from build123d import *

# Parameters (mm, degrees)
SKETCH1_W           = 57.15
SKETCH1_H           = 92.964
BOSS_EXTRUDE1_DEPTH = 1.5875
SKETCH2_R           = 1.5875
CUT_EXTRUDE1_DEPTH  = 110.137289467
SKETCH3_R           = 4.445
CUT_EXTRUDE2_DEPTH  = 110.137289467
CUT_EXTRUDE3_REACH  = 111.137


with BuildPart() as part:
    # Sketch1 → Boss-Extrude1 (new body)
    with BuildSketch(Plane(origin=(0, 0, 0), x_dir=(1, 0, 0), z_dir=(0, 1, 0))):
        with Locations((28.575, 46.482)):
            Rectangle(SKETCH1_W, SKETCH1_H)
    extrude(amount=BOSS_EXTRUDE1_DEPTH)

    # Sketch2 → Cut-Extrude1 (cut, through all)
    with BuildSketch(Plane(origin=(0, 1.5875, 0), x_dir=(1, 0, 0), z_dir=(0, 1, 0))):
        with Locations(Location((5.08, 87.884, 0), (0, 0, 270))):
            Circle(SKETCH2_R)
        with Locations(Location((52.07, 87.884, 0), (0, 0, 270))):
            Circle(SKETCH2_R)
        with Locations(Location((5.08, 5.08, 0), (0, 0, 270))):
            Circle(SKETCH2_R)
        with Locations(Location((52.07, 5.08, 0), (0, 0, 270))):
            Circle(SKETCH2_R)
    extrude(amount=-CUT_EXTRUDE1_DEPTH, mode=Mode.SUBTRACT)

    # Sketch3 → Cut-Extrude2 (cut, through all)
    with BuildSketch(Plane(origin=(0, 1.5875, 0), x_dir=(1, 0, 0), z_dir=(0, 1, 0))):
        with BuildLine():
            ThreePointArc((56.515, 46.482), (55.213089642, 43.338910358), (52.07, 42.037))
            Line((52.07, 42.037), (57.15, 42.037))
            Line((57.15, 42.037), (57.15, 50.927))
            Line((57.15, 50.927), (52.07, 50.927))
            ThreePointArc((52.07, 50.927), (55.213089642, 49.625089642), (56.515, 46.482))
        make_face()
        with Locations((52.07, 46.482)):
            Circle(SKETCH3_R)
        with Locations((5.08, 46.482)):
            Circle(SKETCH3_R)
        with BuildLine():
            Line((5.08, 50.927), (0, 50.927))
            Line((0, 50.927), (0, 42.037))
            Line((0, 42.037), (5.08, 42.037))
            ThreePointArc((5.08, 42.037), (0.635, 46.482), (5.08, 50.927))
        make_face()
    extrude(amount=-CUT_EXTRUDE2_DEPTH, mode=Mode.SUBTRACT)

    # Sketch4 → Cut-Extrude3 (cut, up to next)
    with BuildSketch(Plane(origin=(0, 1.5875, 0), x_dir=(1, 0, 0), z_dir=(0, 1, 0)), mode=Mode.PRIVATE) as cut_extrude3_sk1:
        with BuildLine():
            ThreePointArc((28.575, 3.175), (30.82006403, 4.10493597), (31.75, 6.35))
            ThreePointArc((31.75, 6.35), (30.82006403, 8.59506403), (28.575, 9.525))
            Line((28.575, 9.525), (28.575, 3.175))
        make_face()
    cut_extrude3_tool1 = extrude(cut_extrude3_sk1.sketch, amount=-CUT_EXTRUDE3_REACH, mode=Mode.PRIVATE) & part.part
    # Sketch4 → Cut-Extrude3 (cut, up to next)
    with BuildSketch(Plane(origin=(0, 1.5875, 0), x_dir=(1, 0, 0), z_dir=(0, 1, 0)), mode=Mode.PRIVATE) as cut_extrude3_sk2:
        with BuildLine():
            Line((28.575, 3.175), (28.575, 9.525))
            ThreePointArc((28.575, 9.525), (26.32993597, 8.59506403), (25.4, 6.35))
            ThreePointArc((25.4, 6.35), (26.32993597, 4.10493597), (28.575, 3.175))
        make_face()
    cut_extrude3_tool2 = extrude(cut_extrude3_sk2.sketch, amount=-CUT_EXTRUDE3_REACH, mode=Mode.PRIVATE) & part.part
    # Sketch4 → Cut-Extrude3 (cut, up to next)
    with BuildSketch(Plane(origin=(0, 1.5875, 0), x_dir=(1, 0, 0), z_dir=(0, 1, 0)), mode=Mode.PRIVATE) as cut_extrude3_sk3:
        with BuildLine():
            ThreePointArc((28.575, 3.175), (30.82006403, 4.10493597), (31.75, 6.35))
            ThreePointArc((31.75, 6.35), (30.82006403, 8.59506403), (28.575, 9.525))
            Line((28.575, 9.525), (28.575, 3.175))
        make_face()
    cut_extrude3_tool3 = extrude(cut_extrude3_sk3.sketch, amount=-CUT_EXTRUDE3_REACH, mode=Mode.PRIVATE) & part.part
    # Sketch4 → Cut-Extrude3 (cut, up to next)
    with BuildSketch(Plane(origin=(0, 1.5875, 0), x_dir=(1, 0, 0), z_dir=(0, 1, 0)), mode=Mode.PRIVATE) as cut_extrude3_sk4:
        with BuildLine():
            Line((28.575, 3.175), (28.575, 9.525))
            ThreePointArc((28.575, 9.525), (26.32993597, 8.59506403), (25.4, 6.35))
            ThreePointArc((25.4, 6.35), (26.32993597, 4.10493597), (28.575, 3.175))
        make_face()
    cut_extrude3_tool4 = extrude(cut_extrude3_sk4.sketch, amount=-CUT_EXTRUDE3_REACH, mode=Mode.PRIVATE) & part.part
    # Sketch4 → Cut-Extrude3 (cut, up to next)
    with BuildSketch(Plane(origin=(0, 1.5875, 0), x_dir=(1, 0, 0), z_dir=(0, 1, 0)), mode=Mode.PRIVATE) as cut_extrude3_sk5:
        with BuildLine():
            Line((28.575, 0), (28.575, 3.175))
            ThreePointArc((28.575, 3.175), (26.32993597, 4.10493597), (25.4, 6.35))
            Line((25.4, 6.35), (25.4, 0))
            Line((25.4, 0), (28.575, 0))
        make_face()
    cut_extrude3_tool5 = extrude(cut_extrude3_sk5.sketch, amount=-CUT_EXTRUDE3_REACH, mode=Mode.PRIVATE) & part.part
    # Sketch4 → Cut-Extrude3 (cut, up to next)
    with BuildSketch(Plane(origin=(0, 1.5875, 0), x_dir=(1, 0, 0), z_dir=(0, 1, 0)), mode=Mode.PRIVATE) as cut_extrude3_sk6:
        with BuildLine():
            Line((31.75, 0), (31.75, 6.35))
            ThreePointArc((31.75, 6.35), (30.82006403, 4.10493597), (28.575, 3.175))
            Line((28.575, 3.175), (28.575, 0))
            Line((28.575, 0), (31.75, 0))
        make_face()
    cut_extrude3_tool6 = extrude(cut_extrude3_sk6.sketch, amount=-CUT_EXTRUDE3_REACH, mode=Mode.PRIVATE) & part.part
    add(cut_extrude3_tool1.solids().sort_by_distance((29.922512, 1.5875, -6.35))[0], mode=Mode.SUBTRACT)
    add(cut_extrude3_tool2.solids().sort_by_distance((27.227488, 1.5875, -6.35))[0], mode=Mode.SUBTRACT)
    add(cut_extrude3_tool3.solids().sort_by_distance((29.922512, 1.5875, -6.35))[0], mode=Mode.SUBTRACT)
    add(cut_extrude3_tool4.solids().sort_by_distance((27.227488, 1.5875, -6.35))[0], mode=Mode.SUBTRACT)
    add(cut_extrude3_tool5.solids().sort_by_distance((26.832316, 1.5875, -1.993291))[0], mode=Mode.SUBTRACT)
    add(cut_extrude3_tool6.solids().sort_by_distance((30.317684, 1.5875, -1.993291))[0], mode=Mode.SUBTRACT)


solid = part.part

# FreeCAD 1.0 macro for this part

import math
import FreeCAD as App
import Part
import Sketcher
Q = App.Units.Quantity

doc = App.newDocument("Part")
body = doc.addObject("PartDesign::Body", "Body")

sketch1 = body.newObject("Sketcher::SketchObject", "Sketch")
sketch1.AttachmentSupport = (doc.getObject("XZ_Plane"), [""])
sketch1.MapMode = "FlatFace"
sketch1.addGeometry(Part.LineSegment(App.Vector(0, -93, 0), App.Vector(0, 0, 0)), False)
sketch1.addGeometry(Part.LineSegment(App.Vector(0, 0, 0), App.Vector(57, 0, 0)), False)
sketch1.addGeometry(Part.LineSegment(App.Vector(57, 0, 0), App.Vector(57, -93, 0)), False)
sketch1.addGeometry(Part.LineSegment(App.Vector(57, -93, 0), App.Vector(0, -93, 0)), False)
sketch1.addConstraint(Sketcher.Constraint("Coincident", 0, 2, 1, 1))
sketch1.addConstraint(Sketcher.Constraint("Coincident", 1, 2, 2, 1))
sketch1.addConstraint(Sketcher.Constraint("Coincident", 2, 2, 3, 1))
sketch1.addConstraint(Sketcher.Constraint("Coincident", 3, 2, 0, 1))
sketch1.addConstraint(Sketcher.Constraint("Vertical", 0))
sketch1.addConstraint(Sketcher.Constraint("Horizontal", 1))
sketch1.addConstraint(Sketcher.Constraint("Vertical", 2))
sketch1.addConstraint(Sketcher.Constraint("Horizontal", 3))
sketch1.addConstraint(Sketcher.Constraint("Coincident", 0, 2, -1, 1))
sketch1.addConstraint(Sketcher.Constraint("DistanceX", 1, 1, 1, 2, Q("2.25 in")))
sketch1.addConstraint(Sketcher.Constraint("DistanceY", 0, 1, 0, 2, Q("3.66 in")))
pad1 = body.newObject("PartDesign::Pad", "Pad")
pad1.Profile = sketch1
pad1.Length = Q("0.0625 in")
pad1.Reversed = True

sketch2 = body.newObject("Sketcher::SketchObject", "Sketch001")
sketch2.AttachmentSupport = (doc.getObject("XZ_Plane"), [""])
sketch2.MapMode = "FlatFace"
sketch2.AttachmentOffset = App.Placement(App.Vector(0, 0, -0.0625 * 25.4), App.Rotation())
sketch2.addGeometry(Part.Circle(App.Vector(5.1, -87.9, 0), App.Vector(0, 0, 1), 1.6), False)
sketch2.addGeometry(Part.Circle(App.Vector(52.1, -87.9, 0), App.Vector(0, 0, 1), 1.6), False)
sketch2.addGeometry(Part.Circle(App.Vector(5.1, -5.1, 0), App.Vector(0, 0, 1), 1.6), False)
sketch2.addGeometry(Part.Circle(App.Vector(52.1, -5.1, 0), App.Vector(0, 0, 1), 1.6), False)
sketch2.addConstraint(Sketcher.Constraint("Equal", 0, 1))
sketch2.addConstraint(Sketcher.Constraint("Equal", 1, 2))
sketch2.addConstraint(Sketcher.Constraint("Equal", 2, 3))
sketch2.addConstraint(Sketcher.Constraint("Horizontal", 0, 3, 1, 3))
sketch2.addConstraint(Sketcher.Constraint("Horizontal", 2, 3, 3, 3))
sketch2.addConstraint(Sketcher.Constraint("Vertical", 0, 3, 2, 3))
sketch2.addConstraint(Sketcher.Constraint("Vertical", 1, 3, 3, 3))
sketch2.addConstraint(Sketcher.Constraint("Diameter", 0, Q("0.125 in")))
sketch2.addConstraint(Sketcher.Constraint("DistanceX", -1, 1, 0, 3, Q("0.2 in")))
sketch2.addConstraint(Sketcher.Constraint("DistanceY", 2, 3, -1, 1, Q("0.2 in")))
sketch2.addConstraint(Sketcher.Constraint("DistanceY", 0, 3, -1, 1, Q("3.46 in")))
sketch2.addConstraint(Sketcher.Constraint("DistanceX", -1, 1, 1, 3, Q("2.05 in")))
pocket1 = body.newObject("PartDesign::Pocket", "Pocket")
pocket1.Profile = sketch2
pocket1.Type = "ThroughAll"
pocket1.Reversed = True

sketch3 = body.newObject("Sketcher::SketchObject", "Sketch002")
sketch3.AttachmentSupport = (doc.getObject("XZ_Plane"), [""])
sketch3.MapMode = "FlatFace"
sketch3.AttachmentOffset = App.Placement(App.Vector(0, 0, -0.0625 * 25.4), App.Rotation())
sketch3.addGeometry(Part.LineSegment(App.Vector(52.1, -42, 0), App.Vector(57.1, -42, 0)), False)
sketch3.addGeometry(Part.LineSegment(App.Vector(57.1, -42, 0), App.Vector(57.1, -50.9, 0)), False)
sketch3.addGeometry(Part.LineSegment(App.Vector(57.1, -50.9, 0), App.Vector(52.1, -50.9, 0)), False)
sketch3.addGeometry(Part.ArcOfCircle(Part.Circle(App.Vector(52.1, -46.5, 0), App.Vector(0, 0, 1), 4.4), math.radians(90), math.radians(270)), False)
sketch3.addGeometry(Part.LineSegment(App.Vector(5.1, -50.9, 0), App.Vector(0, -50.9, 0)), False)
sketch3.addGeometry(Part.LineSegment(App.Vector(0, -50.9, 0), App.Vector(0, -42, 0)), False)
sketch3.addGeometry(Part.LineSegment(App.Vector(0, -42, 0), App.Vector(5.1, -42, 0)), False)
sketch3.addGeometry(Part.ArcOfCircle(Part.Circle(App.Vector(5.1, -46.5, 0), App.Vector(0, 0, 1), 4.4), math.radians(-90), math.radians(90)), False)
sketch3.addConstraint(Sketcher.Constraint("Coincident", 0, 2, 1, 1))
sketch3.addConstraint(Sketcher.Constraint("Coincident", 1, 2, 2, 1))
sketch3.addConstraint(Sketcher.Constraint("Tangent", 2, 2, 3, 2))
sketch3.addConstraint(Sketcher.Constraint("Tangent", 3, 1, 0, 1))
sketch3.addConstraint(Sketcher.Constraint("Coincident", 4, 2, 5, 1))
sketch3.addConstraint(Sketcher.Constraint("Coincident", 5, 2, 6, 1))
sketch3.addConstraint(Sketcher.Constraint("Tangent", 6, 2, 7, 2))
sketch3.addConstraint(Sketcher.Constraint("Tangent", 7, 1, 4, 1))
sketch3.addConstraint(Sketcher.Constraint("Horizontal", 0))
sketch3.addConstraint(Sketcher.Constraint("Vertical", 1))
sketch3.addConstraint(Sketcher.Constraint("Horizontal", 2))
sketch3.addConstraint(Sketcher.Constraint("Horizontal", 4))
sketch3.addConstraint(Sketcher.Constraint("Vertical", 5))
sketch3.addConstraint(Sketcher.Constraint("Horizontal", 6))
sketch3.addConstraint(Sketcher.Constraint("Equal", 3, 7))
sketch3.addConstraint(Sketcher.Constraint("PointOnObject", 4, 2, -2))
sketch3.addConstraint(Sketcher.Constraint("Horizontal", 3, 3, 7, 3))
sketch3.addConstraint(Sketcher.Constraint("Equal", 2, 4))
sketch3.addConstraint(Sketcher.Constraint("DistanceX", 0, 1, 0, 2, Q("0.2 in")))
sketch3.addConstraint(Sketcher.Constraint("Radius", 3, Q("0.175 in")))
sketch3.addConstraint(Sketcher.Constraint("DistanceX", -1, 1, 3, 3, Q("2.05 in")))
sketch3.addConstraint(Sketcher.Constraint("DistanceY", 3, 3, -1, 1, Q("1.83 in")))
pocket2 = body.newObject("PartDesign::Pocket", "Pocket001")
pocket2.Profile = sketch3
pocket2.Type = "ThroughAll"
pocket2.Reversed = True

sketch4 = body.newObject("Sketcher::SketchObject", "Sketch003")
sketch4.AttachmentSupport = (doc.getObject("XZ_Plane"), [""])
sketch4.MapMode = "FlatFace"
sketch4.AttachmentOffset = App.Placement(App.Vector(0, 0, -0.0625 * 25.4), App.Rotation())
sketch4.addGeometry(Part.ArcOfCircle(Part.Circle(App.Vector(28.6, -6.4, 0), App.Vector(0, 0, 1), 3.2), math.radians(0), math.radians(90)), False)
sketch4.addGeometry(Part.ArcOfCircle(Part.Circle(App.Vector(28.6, -6.3, 0), App.Vector(0, 0, 1), 3.2), math.radians(-90), math.radians(0)), False)
sketch4.addGeometry(Part.LineSegment(App.Vector(28.6, -9.5, 0), App.Vector(28.6, -3.2, 0)), False)
sketch4.addConstraint(Sketcher.Constraint("Tangent", 0, 1, 1, 2))
sketch4.addConstraint(Sketcher.Constraint("Coincident", 1, 1, 2, 1))
sketch4.addConstraint(Sketcher.Constraint("Coincident", 2, 2, 0, 2))
sketch4.addConstraint(Sketcher.Constraint("Vertical", 2))
sketch4.addConstraint(Sketcher.Constraint("Equal", 0, 1))
sketch4.addConstraint(Sketcher.Constraint("Horizontal", 1, 3, 0, 1))
sketch4.addConstraint(Sketcher.Constraint("Vertical", 0, 3, 1, 1))
sketch4.addConstraint(Sketcher.Constraint("Radius", 0, Q("0.125 in")))
sketch4.addConstraint(Sketcher.Constraint("DistanceY", 0, 3, -1, 1, Q("0.25 in")))
sketch4.addConstraint(Sketcher.Constraint("DistanceX", -1, 1, 0, 1, Q("1.25 in")))
pocket3 = body.newObject("PartDesign::Pocket", "Pocket002")
pocket3.Profile = sketch4
pocket3.Type = "UpToFirst"
pocket3.Reversed = True

sketch5 = body.newObject("Sketcher::SketchObject", "Sketch004")
sketch5.AttachmentSupport = (doc.getObject("XZ_Plane"), [""])
sketch5.MapMode = "FlatFace"
sketch5.AttachmentOffset = App.Placement(App.Vector(0, 0, -0.0625 * 25.4), App.Rotation())
sketch5.addGeometry(Part.LineSegment(App.Vector(28.6, -3.2, 0), App.Vector(28.6, -9.5, 0)), False)
sketch5.addGeometry(Part.ArcOfCircle(Part.Circle(App.Vector(28.6, -6.3, 0), App.Vector(0, 0, 1), 3.2), math.radians(-180), math.radians(-90)), False)
sketch5.addGeometry(Part.ArcOfCircle(Part.Circle(App.Vector(28.6, -6.4, 0), App.Vector(0, 0, 1), 3.2), math.radians(90), math.radians(180)), False)
sketch5.addConstraint(Sketcher.Constraint("Coincident", 0, 2, 1, 2))
sketch5.addConstraint(Sketcher.Constraint("Tangent", 1, 1, 2, 2))
sketch5.addConstraint(Sketcher.Constraint("Coincident", 2, 1, 0, 1))
sketch5.addConstraint(Sketcher.Constraint("Vertical", 0))
sketch5.addConstraint(Sketcher.Constraint("Equal", 1, 2))
sketch5.addConstraint(Sketcher.Constraint("Horizontal", 2, 3, 1, 1))
sketch5.addConstraint(Sketcher.Constraint("Vertical", 2, 3, 0, 2))
sketch5.addConstraint(Sketcher.Constraint("DistanceX", -1, 1, 1, 1, Q("1 in")))
sketch5.addConstraint(Sketcher.Constraint("Radius", 1, Q("0.125 in")))
sketch5.addConstraint(Sketcher.Constraint("DistanceY", 1, 3, -1, 1, Q("0.25 in")))
pocket4 = body.newObject("PartDesign::Pocket", "Pocket003")
pocket4.Profile = sketch5
pocket4.Type = "UpToFirst"
pocket4.Reversed = True

sketch6 = body.newObject("Sketcher::SketchObject", "Sketch005")
sketch6.AttachmentSupport = (doc.getObject("XZ_Plane"), [""])
sketch6.MapMode = "FlatFace"
sketch6.AttachmentOffset = App.Placement(App.Vector(0, 0, -0.0625 * 25.4), App.Rotation())
sketch6.addGeometry(Part.ArcOfCircle(Part.Circle(App.Vector(28.6, -6.4, 0), App.Vector(0, 0, 1), 3.2), math.radians(0), math.radians(90)), False)
sketch6.addGeometry(Part.ArcOfCircle(Part.Circle(App.Vector(28.6, -6.3, 0), App.Vector(0, 0, 1), 3.2), math.radians(-90), math.radians(0)), False)
sketch6.addGeometry(Part.LineSegment(App.Vector(28.6, -9.5, 0), App.Vector(28.6, -3.2, 0)), False)
sketch6.addConstraint(Sketcher.Constraint("Tangent", 0, 1, 1, 2))
sketch6.addConstraint(Sketcher.Constraint("Coincident", 1, 1, 2, 1))
sketch6.addConstraint(Sketcher.Constraint("Coincident", 2, 2, 0, 2))
sketch6.addConstraint(Sketcher.Constraint("Vertical", 2))
sketch6.addConstraint(Sketcher.Constraint("Equal", 0, 1))
sketch6.addConstraint(Sketcher.Constraint("Horizontal", 1, 3, 0, 1))
sketch6.addConstraint(Sketcher.Constraint("Vertical", 0, 3, 1, 1))
sketch6.addConstraint(Sketcher.Constraint("Radius", 0, Q("0.125 in")))
sketch6.addConstraint(Sketcher.Constraint("DistanceY", 0, 3, -1, 1, Q("0.25 in")))
sketch6.addConstraint(Sketcher.Constraint("DistanceX", -1, 1, 0, 1, Q("1.25 in")))
pocket5 = body.newObject("PartDesign::Pocket", "Pocket004")
pocket5.Profile = sketch6
pocket5.Length = Q("0.0625 in")
pocket5.Reversed = True

sketch7 = body.newObject("Sketcher::SketchObject", "Sketch006")
sketch7.AttachmentSupport = (doc.getObject("XZ_Plane"), [""])
sketch7.MapMode = "FlatFace"
sketch7.AttachmentOffset = App.Placement(App.Vector(0, 0, -0.0625 * 25.4), App.Rotation())
sketch7.addGeometry(Part.LineSegment(App.Vector(28.6, -3.2, 0), App.Vector(28.6, -9.5, 0)), False)
sketch7.addGeometry(Part.ArcOfCircle(Part.Circle(App.Vector(28.6, -6.3, 0), App.Vector(0, 0, 1), 3.2), math.radians(-180), math.radians(-90)), False)
sketch7.addGeometry(Part.ArcOfCircle(Part.Circle(App.Vector(28.6, -6.4, 0), App.Vector(0, 0, 1), 3.2), math.radians(90), math.radians(180)), False)
sketch7.addConstraint(Sketcher.Constraint("Coincident", 0, 2, 1, 2))
sketch7.addConstraint(Sketcher.Constraint("Tangent", 1, 1, 2, 2))
sketch7.addConstraint(Sketcher.Constraint("Coincident", 2, 1, 0, 1))
sketch7.addConstraint(Sketcher.Constraint("Vertical", 0))
sketch7.addConstraint(Sketcher.Constraint("Equal", 1, 2))
sketch7.addConstraint(Sketcher.Constraint("Horizontal", 2, 3, 1, 1))
sketch7.addConstraint(Sketcher.Constraint("Vertical", 2, 3, 0, 2))
sketch7.addConstraint(Sketcher.Constraint("DistanceX", -1, 1, 1, 1, Q("1 in")))
sketch7.addConstraint(Sketcher.Constraint("Radius", 1, Q("0.125 in")))
sketch7.addConstraint(Sketcher.Constraint("DistanceY", 1, 3, -1, 1, Q("0.25 in")))
pocket6 = body.newObject("PartDesign::Pocket", "Pocket005")
pocket6.Profile = sketch7
pocket6.Length = Q("0.0625 in")
pocket6.Reversed = True

sketch8 = body.newObject("Sketcher::SketchObject", "Sketch007")
sketch8.AttachmentSupport = (doc.getObject("XZ_Plane"), [""])
sketch8.MapMode = "FlatFace"
sketch8.AttachmentOffset = App.Placement(App.Vector(0, 0, -0.0625 * 25.4), App.Rotation())
sketch8.addGeometry(Part.LineSegment(App.Vector(28.6, 0, 0), App.Vector(28.6, -3.2, 0)), False)
sketch8.addGeometry(Part.ArcOfCircle(Part.Circle(App.Vector(28.6, -6.4, 0), App.Vector(0, 0, 1), 3.2), math.radians(90), math.radians(180)), False)
sketch8.addGeometry(Part.LineSegment(App.Vector(25.4, -6.3, 0), App.Vector(25.4, 0, 0)), False)
sketch8.addGeometry(Part.LineSegment(App.Vector(25.4, 0, 0), App.Vector(28.6, 0, 0)), False)
sketch8.addConstraint(Sketcher.Constraint("Coincident", 0, 2, 1, 1))
sketch8.addConstraint(Sketcher.Constraint("Tangent", 1, 2, 2, 1))
sketch8.addConstraint(Sketcher.Constraint("Coincident", 2, 2, 3, 1))
sketch8.addConstraint(Sketcher.Constraint("Coincident", 3, 2, 0, 1))
sketch8.addConstraint(Sketcher.Constraint("Vertical", 0))
sketch8.addConstraint(Sketcher.Constraint("Vertical", 2))
sketch8.addConstraint(Sketcher.Constraint("Horizontal", 3))
sketch8.addConstraint(Sketcher.Constraint("PointOnObject", 2, 2, -1))
sketch8.addConstraint(Sketcher.Constraint("Vertical", 1, 3, 0, 2))
sketch8.addConstraint(Sketcher.Constraint("Equal", 3, 0))
sketch8.addConstraint(Sketcher.Constraint("DistanceX", -1, 1, 1, 2, Q("1 in")))
sketch8.addConstraint(Sketcher.Constraint("Radius", 1, Q("0.125 in")))
pocket7 = body.newObject("PartDesign::Pocket", "Pocket006")
pocket7.Profile = sketch8
pocket7.Type = "UpToFirst"
pocket7.Reversed = True

sketch9 = body.newObject("Sketcher::SketchObject", "Sketch008")
sketch9.AttachmentSupport = (doc.getObject("XZ_Plane"), [""])
sketch9.MapMode = "FlatFace"
sketch9.AttachmentOffset = App.Placement(App.Vector(0, 0, -0.0625 * 25.4), App.Rotation())
sketch9.addGeometry(Part.LineSegment(App.Vector(31.8, 0, 0), App.Vector(31.8, -6.3, 0)), False)
sketch9.addGeometry(Part.ArcOfCircle(Part.Circle(App.Vector(28.6, -6.4, 0), App.Vector(0, 0, 1), 3.2), math.radians(0), math.radians(90)), False)
sketch9.addGeometry(Part.LineSegment(App.Vector(28.6, -3.2, 0), App.Vector(28.6, 0, 0)), False)
sketch9.addGeometry(Part.LineSegment(App.Vector(28.6, 0, 0), App.Vector(31.8, 0, 0)), False)
sketch9.addConstraint(Sketcher.Constraint("Tangent", 0, 2, 1, 1))
sketch9.addConstraint(Sketcher.Constraint("Coincident", 1, 2, 2, 1))
sketch9.addConstraint(Sketcher.Constraint("Coincident", 2, 2, 3, 1))
sketch9.addConstraint(Sketcher.Constraint("Coincident", 3, 2, 0, 1))
sketch9.addConstraint(Sketcher.Constraint("Vertical", 0))
sketch9.addConstraint(Sketcher.Constraint("Vertical", 2))
sketch9.addConstraint(Sketcher.Constraint("Horizontal", 3))
sketch9.addConstraint(Sketcher.Constraint("PointOnObject", 2, 2, -1))
sketch9.addConstraint(Sketcher.Constraint("Equal", 3, 2))
sketch9.addConstraint(Sketcher.Constraint("Radius", 1, Q("0.125 in")))
sketch9.addConstraint(Sketcher.Constraint("DistanceY", 0, 2, 0, 1, Q("0.25 in")))
sketch9.addConstraint(Sketcher.Constraint("DistanceX", -1, 1, 0, 2, Q("1.25 in")))
pocket8 = body.newObject("PartDesign::Pocket", "Pocket007")
pocket8.Profile = sketch9
pocket8.Type = "UpToFirst"
pocket8.Reversed = True

doc.recompute()
